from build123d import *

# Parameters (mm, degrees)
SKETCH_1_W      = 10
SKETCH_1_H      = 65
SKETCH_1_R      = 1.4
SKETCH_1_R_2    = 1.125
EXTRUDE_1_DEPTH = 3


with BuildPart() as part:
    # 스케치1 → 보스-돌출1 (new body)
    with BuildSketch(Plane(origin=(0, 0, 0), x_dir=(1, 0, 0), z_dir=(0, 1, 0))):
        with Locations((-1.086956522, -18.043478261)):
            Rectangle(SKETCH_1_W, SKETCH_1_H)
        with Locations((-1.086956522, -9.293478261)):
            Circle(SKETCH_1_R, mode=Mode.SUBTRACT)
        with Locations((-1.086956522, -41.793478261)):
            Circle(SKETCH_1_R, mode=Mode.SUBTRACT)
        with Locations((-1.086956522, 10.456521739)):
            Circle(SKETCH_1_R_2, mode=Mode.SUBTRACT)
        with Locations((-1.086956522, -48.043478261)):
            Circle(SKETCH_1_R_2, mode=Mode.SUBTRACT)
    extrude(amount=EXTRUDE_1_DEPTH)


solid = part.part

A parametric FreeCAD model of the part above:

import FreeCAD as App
import Part
import Sketcher
from FreeCAD import Vector


def add_polygon(sketch, points):
    """Adds a closed chain of lines whose ends are joined by coincident constraints."""
    first, n = sketch.GeometryCount, len(points)
    for a, b in zip(points, points[1:] + points[:1]):
        sketch.addGeometry(Part.LineSegment(App.Vector(*a, 0), App.Vector(*b, 0)), False)
    for i in range(n):
        sketch.addConstraint(Sketcher.Constraint("Coincident", first + i, 2, first + (i + 1) % n, 1))

doc = App.newDocument("Part")
body = doc.addObject("PartDesign::Body", "Body")

# Sketch on XZ plane
sketch1 = body.newObject("Sketcher::SketchObject", "Sketch")
sketch1.AttachmentSupport = (doc.getObject("XZ_Plane"), [""])
sketch1.MapMode = "FlatFace"
add_polygon(sketch1, [(-6.1, -14.5), (-6.1, 50.5), (3.9, 50.5), (3.9, -14.5)])  # lines 0-3
sketch1.addGeometry(Part.Circle(Vector(-1.1, 48, 0), Vector(0, 0, 1), 1.1), False)  # 4
sketch1.addGeometry(Part.Circle(Vector(-1.1, 41.8, 0), Vector(0, 0, 1), 1.4), False)  # 5
sketch1.addGeometry(Part.Circle(Vector(-1.1, 9.3, 0), Vector(0, 0, 1), 1.4), False)  # 6
sketch1.addGeometry(Part.Circle(Vector(-1.1, -10.5, 0), Vector(0, 0, 1), 1.1), False)  # 7
sketch1.addConstraint(Sketcher.Constraint("Vertical", 0))
sketch1.addConstraint(Sketcher.Constraint("Horizontal", 1))
sketch1.addConstraint(Sketcher.Constraint("Vertical", 2))
sketch1.addConstraint(Sketcher.Constraint("Horizontal", 3))
sketch1.addConstraint(Sketcher.Constraint("Equal", 5, 6))
sketch1.addConstraint(Sketcher.Constraint("Equal", 4, 7))
sketch1.addConstraint(Sketcher.Constraint("Vertical", 4, 3, 5, 3))
sketch1.addConstraint(Sketcher.Constraint("Vertical", 5, 3, 6, 3))
sketch1.addConstraint(Sketcher.Constraint("Vertical", 6, 3, 7, 3))
sketch1.addConstraint(Sketcher.Constraint("Diameter", 5, 2.8))
sketch1.addConstraint(Sketcher.Constraint("Diameter", 4, 2.25))
sketch1.addConstraint(Sketcher.Constraint("DistanceX", 1, 1, 1, 2, 10.0))
sketch1.addConstraint(Sketcher.Constraint("DistanceY", 0, 1, 0, 2, 65.0))
sketch1.addConstraint(Sketcher.Constraint("DistanceX", 0, 2, 4, 3, 5.0))
sketch1.addConstraint(Sketcher.Constraint("DistanceY", 7, 3, 0, 2, 61.0))
sketch1.addConstraint(Sketcher.Constraint("DistanceY", 6, 3, 5, 3, 32.5))
sketch1.addConstraint(Sketcher.Constraint("DistanceY", 7, 3, 4, 3, 58.5))
sketch1.addConstraint(Sketcher.Constraint("DistanceY", 5, 3, 4, 3, 6.25))
sketch1.addConstraint(Sketcher.Constraint("DistanceY", -1, 1, 4, 3, 48.043478))
sketch1.addConstraint(Sketcher.Constraint("DistanceX", 4, 3, -1, 1, 1.086957))
pad1 = body.newObject("PartDesign::Pad", "Pad")
pad1.Profile = sketch1
pad1.Length = 3
pad1.Reversed = True

doc.recompute()
